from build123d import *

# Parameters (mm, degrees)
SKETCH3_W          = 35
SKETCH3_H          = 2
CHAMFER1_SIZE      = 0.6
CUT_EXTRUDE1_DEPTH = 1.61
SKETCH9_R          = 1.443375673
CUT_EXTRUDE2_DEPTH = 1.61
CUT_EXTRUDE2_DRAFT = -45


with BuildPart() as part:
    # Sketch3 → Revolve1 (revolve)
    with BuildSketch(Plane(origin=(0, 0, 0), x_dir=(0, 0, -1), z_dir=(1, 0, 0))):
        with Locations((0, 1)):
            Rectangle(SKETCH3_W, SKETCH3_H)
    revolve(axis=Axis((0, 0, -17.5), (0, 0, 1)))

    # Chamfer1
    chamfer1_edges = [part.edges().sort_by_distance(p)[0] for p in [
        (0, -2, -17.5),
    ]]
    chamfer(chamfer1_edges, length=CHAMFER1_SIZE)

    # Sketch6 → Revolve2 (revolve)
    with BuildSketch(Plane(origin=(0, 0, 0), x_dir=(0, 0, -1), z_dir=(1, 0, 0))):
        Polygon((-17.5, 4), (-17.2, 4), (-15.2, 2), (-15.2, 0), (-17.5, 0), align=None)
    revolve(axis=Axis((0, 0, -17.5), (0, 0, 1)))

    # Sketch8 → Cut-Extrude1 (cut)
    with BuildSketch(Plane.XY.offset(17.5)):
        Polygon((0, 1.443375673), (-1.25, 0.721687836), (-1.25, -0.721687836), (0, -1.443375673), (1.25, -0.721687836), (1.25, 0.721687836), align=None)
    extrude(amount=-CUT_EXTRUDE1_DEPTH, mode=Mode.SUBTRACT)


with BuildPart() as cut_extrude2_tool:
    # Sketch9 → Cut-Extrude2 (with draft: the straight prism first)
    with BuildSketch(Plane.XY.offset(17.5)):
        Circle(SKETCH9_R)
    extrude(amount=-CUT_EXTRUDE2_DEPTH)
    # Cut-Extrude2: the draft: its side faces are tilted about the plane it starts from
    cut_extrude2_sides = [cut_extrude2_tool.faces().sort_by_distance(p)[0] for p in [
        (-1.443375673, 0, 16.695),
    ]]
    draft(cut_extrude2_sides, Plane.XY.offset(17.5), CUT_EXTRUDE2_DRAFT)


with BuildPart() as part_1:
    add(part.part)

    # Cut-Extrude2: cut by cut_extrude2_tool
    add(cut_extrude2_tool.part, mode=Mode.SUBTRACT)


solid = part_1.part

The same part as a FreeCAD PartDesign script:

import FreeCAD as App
import Part
import Sketcher
Q = App.Units.Quantity


def edges_at(feature, points):
    """Names of the edges that pass closest to the given points."""
    edges = feature.Shape.Edges
    near = lambda p: min(range(len(edges)), key=lambda i: edges[i].distToShape(Part.Vertex(*p))[0])
    return sorted({f"Edge{near(p) + 1}" for p in points})


def faces_at(feature, points):
    """Names of the faces that lie closest to the given points."""
    faces = feature.Shape.Faces
    near = lambda p: min(range(len(faces)), key=lambda i: faces[i].distToShape(Part.Vertex(*p))[0])
    return sorted({f"Face{near(p) + 1}" for p in points})

doc = App.newDocument("Part")
params = doc.addObject("Spreadsheet::Sheet", "Params")
for row, (alias, value) in enumerate([
    ("sketch1_width", "2 mm"),
    ("sketch1_height", "35 mm"),
    ("revolution_angle", "360 deg"),
    ("chamfer_size", "0.6 mm"),
    ("sketch2_width", "4 mm"),
    ("sketch2_width2", "2 mm"),
    ("sketch2_height", "0.3 mm"),
    ("revolution2_angle", "360 deg"),
    ("pocket1_length", "1.61 mm"),
    ("pad1_length", "1.61 mm"),
    ("draft_angle", "45 deg"),
], start=1):
    params.set(f"A{row}", alias)
    params.set(f"B{row}", "=" + value)
    params.setAlias(f"B{row}", alias)

body = doc.addObject("PartDesign::Body", "Body")

# Sketch on YZ plane
sketch1 = doc.addObject("Sketcher::SketchObject", "Sketch")
body.addObject(sketch1)
sketch1.AttachmentSupport = (doc.YZ_Plane, [""])
sketch1.MapMode = "FlatFace"
sketch1.addGeometry(Part.LineSegment(App.Vector(2, 17.5, 0), App.Vector(0, 17.5, 0)), False)
sketch1.addGeometry(Part.LineSegment(App.Vector(0, 17.5, 0), App.Vector(0, -17.5, 0)), False)
sketch1.addGeometry(Part.LineSegment(App.Vector(0, -17.5, 0), App.Vector(2, -17.5, 0)), False)
sketch1.addGeometry(Part.LineSegment(App.Vector(2, -17.5, 0), App.Vector(2, 17.5, 0)), False)
sketch1.addConstraint(Sketcher.Constraint("Coincident", 0, 2, 1, 1))
sketch1.addConstraint(Sketcher.Constraint("Coincident", 1, 2, 2, 1))
sketch1.addConstraint(Sketcher.Constraint("Coincident", 2, 2, 3, 1))
sketch1.addConstraint(Sketcher.Constraint("Coincident", 3, 2, 0, 1))
sketch1.addConstraint(Sketcher.Constraint("Horizontal", 0))
sketch1.addConstraint(Sketcher.Constraint("Vertical", 1))
sketch1.addConstraint(Sketcher.Constraint("Horizontal", 2))
sketch1.addConstraint(Sketcher.Constraint("Vertical", 3))
sketch1.addConstraint(Sketcher.Constraint("Symmetric", 0, 2, 1, 2, -1, 1))
sketch1.addConstraint(Sketcher.Constraint("DistanceX", 0, 2, 0, 1, Q("2 mm")))
sketch1.addConstraint(Sketcher.Constraint("DistanceY", 1, 2, 1, 1, Q("35 mm")))
sketch1.setExpression("Constraints[9]", "Params.sketch1_width")
sketch1.setExpression("Constraints[10]", "Params.sketch1_height")
revolution = doc.addObject("PartDesign::Revolution", "Revolution")
body.addObject(revolution)
revolution.Profile = sketch1
revolution.ReferenceAxis = (sketch1, ["V_Axis"])
revolution.setExpression("Angle", "Params.revolution_angle")
doc.recompute()

chamfer = doc.addObject("PartDesign::Chamfer", "Chamfer")
body.addObject(chamfer)
chamfer.Base = (revolution, edges_at(revolution, [(0, -2, -17.5)]))
chamfer.setExpression("Size", "Params.chamfer_size")

# Sketch on YZ plane
sketch2 = doc.addObject("Sketcher::SketchObject", "Sketch001")
body.addObject(sketch2)
sketch2.AttachmentSupport = (doc.YZ_Plane, [""])
sketch2.MapMode = "FlatFace"
sketch2.addGeometry(Part.LineSegment(App.Vector(4, 17.2, 0), App.Vector(4, 17.5, 0)), False)
sketch2.addGeometry(Part.LineSegment(App.Vector(4, 17.5, 0), App.Vector(0, 17.5, 0)), False)
sketch2.addGeometry(Part.LineSegment(App.Vector(0, 17.5, 0), App.Vector(0, 15.2, 0)), False)
sketch2.addGeometry(Part.LineSegment(App.Vector(0, 15.2, 0), App.Vector(2, 15.2, 0)), False)
sketch2.addGeometry(Part.LineSegment(App.Vector(2, 15.2, 0), App.Vector(4, 17.2, 0)), False)
sketch2.addConstraint(Sketcher.Constraint("Coincident", 0, 2, 1, 1))
sketch2.addConstraint(Sketcher.Constraint("Coincident", 1, 2, 2, 1))
sketch2.addConstraint(Sketcher.Constraint("Coincident", 2, 2, 3, 1))
sketch2.addConstraint(Sketcher.Constraint("Coincident", 3, 2, 4, 1))
sketch2.addConstraint(Sketcher.Constraint("Coincident", 4, 2, 0, 1))
sketch2.addConstraint(Sketcher.Constraint("Vertical", 0))
sketch2.addConstraint(Sketcher.Constraint("Horizontal", 1))
sketch2.addConstraint(Sketcher.Constraint("Vertical", 2))
sketch2.addConstraint(Sketcher.Constraint("Horizontal", 3))
sketch2.addConstraint(Sketcher.Constraint("PointOnObject", 1, 2, -2))
sketch2.addConstraint(Sketcher.Constraint("DistanceX", 1, 2, 1, 1, Q("4 mm")))
sketch2.addConstraint(Sketcher.Constraint("DistanceX", 3, 1, 3, 2, Q("2 mm")))
sketch2.addConstraint(Sketcher.Constraint("Angle", 4, Q("45 deg")))
sketch2.addConstraint(Sketcher.Constraint("DistanceY", 0, 1, 0, 2, Q("0.3 mm")))
sketch2.addConstraint(Sketcher.Constraint("DistanceY", -1, 1, 0, 2, Q("17.5 mm")))
sketch2.setExpression("Constraints[10]", "Params.sketch2_width")
sketch2.setExpression("Constraints[11]", "Params.sketch2_width2")
sketch2.setExpression("Constraints[13]", "Params.sketch2_height")
revolution2 = doc.addObject("PartDesign::Revolution", "Revolution001")
body.addObject(revolution2)
revolution2.Profile = sketch2
revolution2.ReferenceAxis = (sketch2, ["V_Axis"])
revolution2.setExpression("Angle", "Params.revolution2_angle")

# Sketch on XY plane
sketch3 = doc.addObject("Sketcher::SketchObject", "Sketch002")
body.addObject(sketch3)
sketch3.AttachmentSupport = (doc.XY_Plane, [""])
sketch3.MapMode = "FlatFace"
sketch3.AttachmentOffset = App.Placement(App.Vector(0, 0, 17.5), App.Rotation())
sketch3.addGeometry(Part.LineSegment(App.Vector(0, 1.4, 0), App.Vector(-1.2, 0.7, 0)), False)
sketch3.addGeometry(Part.LineSegment(App.Vector(-1.2, 0.7, 0), App.Vector(-1.2, -0.7, 0)), False)
sketch3.addGeometry(Part.LineSegment(App.Vector(-1.2, -0.7, 0), App.Vector(0, -1.4, 0)), False)
sketch3.addGeometry(Part.LineSegment(App.Vector(0, -1.4, 0), App.Vector(1.2, -0.7, 0)), False)
sketch3.addGeometry(Part.LineSegment(App.Vector(1.2, -0.7, 0), App.Vector(1.2, 0.7, 0)), False)
sketch3.addGeometry(Part.LineSegment(App.Vector(1.2, 0.7, 0), App.Vector(0, 1.4, 0)), False)
sketch3.addConstraint(Sketcher.Constraint("Coincident", 0, 2, 1, 1))
sketch3.addConstraint(Sketcher.Constraint("Coincident", 1, 2, 2, 1))
sketch3.addConstraint(Sketcher.Constraint("Coincident", 2, 2, 3, 1))
sketch3.addConstraint(Sketcher.Constraint("Coincident", 3, 2, 4, 1))
sketch3.addConstraint(Sketcher.Constraint("Coincident", 4, 2, 5, 1))
sketch3.addConstraint(Sketcher.Constraint("Coincident", 5, 2, 0, 1))
sketch3.addConstraint(Sketcher.Constraint("Vertical", 1))
sketch3.addConstraint(Sketcher.Constraint("Vertical", 4))
sketch3.addConstraint(Sketcher.Constraint("Symmetric", 0, 2, 3, 2, -1, 1))
sketch3.addConstraint(Sketcher.Constraint("Symmetric", 2, 2, 5, 2, -1, 1))
sketch3.addConstraint(Sketcher.Constraint("PointOnObject", 2, 2, -2))
sketch3.addConstraint(Sketcher.Constraint("Parallel", 2, 5))
sketch3.addConstraint(Sketcher.Constraint("Horizontal", 1, 2, 3, 2))
sketch3.addConstraint(Sketcher.Constraint("Angle", 0, Q("-150 deg")))
sketch3.addConstraint(Sketcher.Constraint("DistanceX", 1, 2, 3, 2, Q("2.5 mm")))
sketch3.addConstraint(Sketcher.Constraint("DistanceY", 1, 2, 1, 1, Q("1.443376 mm")))
pocket1 = doc.addObject("PartDesign::Pocket", "Pocket")
body.addObject(pocket1)
pocket1.Profile = sketch3
pocket1.setExpression("Length", "Params.pocket1_length")
body2 = doc.addObject("PartDesign::Body", "Body001")

# Sketch on XY plane
sketch4 = doc.addObject("Sketcher::SketchObject", "Sketch003")
body2.addObject(sketch4)
sketch4.AttachmentSupport = (doc.getObject("XY_Plane001"), [""])
sketch4.MapMode = "FlatFace"
sketch4.AttachmentOffset = App.Placement(App.Vector(0, 0, 17.5), App.Rotation())
sketch4.addGeometry(Part.Circle(App.Vector(0, 0, 0), App.Vector(0, 0, 1), 1.4), False)
sketch4.addConstraint(Sketcher.Constraint("Coincident", 0, 3, -1, 1))
sketch4.addConstraint(Sketcher.Constraint("Diameter", 0, Q("2.886751 mm")))
pad1 = doc.addObject("PartDesign::Pad", "Pad")
body2.addObject(pad1)
pad1.Profile = sketch4
pad1.setExpression("Length", "Params.pad1_length")
pad1.Reversed = True
doc.recompute()

datumplane = doc.addObject("PartDesign::Plane", "DatumPlane")
body2.addObject(datumplane)
datumplane.AttachmentSupport = (doc.getObject("XY_Plane001"), [""])
datumplane.MapMode = "FlatFace"
datumplane.AttachmentOffset = App.Placement(App.Vector(0, 0, 17.5), App.Rotation())
draft = doc.addObject("PartDesign::Draft", "Draft")
body2.addObject(draft)
draft.Base = (pad1, faces_at(pad1, [(-1.443, 0, 16.695)]))
draft.NeutralPlane = (datumplane, [""])
draft.setExpression("Angle", "Params.draft_angle")
draft.Reversed = True
doc.recompute()

boolean = doc.addObject("PartDesign::Boolean", "Boolean")
body.addObject(boolean)
boolean.Type = "Cut"
boolean.addObjects([body2])

doc.recompute()
